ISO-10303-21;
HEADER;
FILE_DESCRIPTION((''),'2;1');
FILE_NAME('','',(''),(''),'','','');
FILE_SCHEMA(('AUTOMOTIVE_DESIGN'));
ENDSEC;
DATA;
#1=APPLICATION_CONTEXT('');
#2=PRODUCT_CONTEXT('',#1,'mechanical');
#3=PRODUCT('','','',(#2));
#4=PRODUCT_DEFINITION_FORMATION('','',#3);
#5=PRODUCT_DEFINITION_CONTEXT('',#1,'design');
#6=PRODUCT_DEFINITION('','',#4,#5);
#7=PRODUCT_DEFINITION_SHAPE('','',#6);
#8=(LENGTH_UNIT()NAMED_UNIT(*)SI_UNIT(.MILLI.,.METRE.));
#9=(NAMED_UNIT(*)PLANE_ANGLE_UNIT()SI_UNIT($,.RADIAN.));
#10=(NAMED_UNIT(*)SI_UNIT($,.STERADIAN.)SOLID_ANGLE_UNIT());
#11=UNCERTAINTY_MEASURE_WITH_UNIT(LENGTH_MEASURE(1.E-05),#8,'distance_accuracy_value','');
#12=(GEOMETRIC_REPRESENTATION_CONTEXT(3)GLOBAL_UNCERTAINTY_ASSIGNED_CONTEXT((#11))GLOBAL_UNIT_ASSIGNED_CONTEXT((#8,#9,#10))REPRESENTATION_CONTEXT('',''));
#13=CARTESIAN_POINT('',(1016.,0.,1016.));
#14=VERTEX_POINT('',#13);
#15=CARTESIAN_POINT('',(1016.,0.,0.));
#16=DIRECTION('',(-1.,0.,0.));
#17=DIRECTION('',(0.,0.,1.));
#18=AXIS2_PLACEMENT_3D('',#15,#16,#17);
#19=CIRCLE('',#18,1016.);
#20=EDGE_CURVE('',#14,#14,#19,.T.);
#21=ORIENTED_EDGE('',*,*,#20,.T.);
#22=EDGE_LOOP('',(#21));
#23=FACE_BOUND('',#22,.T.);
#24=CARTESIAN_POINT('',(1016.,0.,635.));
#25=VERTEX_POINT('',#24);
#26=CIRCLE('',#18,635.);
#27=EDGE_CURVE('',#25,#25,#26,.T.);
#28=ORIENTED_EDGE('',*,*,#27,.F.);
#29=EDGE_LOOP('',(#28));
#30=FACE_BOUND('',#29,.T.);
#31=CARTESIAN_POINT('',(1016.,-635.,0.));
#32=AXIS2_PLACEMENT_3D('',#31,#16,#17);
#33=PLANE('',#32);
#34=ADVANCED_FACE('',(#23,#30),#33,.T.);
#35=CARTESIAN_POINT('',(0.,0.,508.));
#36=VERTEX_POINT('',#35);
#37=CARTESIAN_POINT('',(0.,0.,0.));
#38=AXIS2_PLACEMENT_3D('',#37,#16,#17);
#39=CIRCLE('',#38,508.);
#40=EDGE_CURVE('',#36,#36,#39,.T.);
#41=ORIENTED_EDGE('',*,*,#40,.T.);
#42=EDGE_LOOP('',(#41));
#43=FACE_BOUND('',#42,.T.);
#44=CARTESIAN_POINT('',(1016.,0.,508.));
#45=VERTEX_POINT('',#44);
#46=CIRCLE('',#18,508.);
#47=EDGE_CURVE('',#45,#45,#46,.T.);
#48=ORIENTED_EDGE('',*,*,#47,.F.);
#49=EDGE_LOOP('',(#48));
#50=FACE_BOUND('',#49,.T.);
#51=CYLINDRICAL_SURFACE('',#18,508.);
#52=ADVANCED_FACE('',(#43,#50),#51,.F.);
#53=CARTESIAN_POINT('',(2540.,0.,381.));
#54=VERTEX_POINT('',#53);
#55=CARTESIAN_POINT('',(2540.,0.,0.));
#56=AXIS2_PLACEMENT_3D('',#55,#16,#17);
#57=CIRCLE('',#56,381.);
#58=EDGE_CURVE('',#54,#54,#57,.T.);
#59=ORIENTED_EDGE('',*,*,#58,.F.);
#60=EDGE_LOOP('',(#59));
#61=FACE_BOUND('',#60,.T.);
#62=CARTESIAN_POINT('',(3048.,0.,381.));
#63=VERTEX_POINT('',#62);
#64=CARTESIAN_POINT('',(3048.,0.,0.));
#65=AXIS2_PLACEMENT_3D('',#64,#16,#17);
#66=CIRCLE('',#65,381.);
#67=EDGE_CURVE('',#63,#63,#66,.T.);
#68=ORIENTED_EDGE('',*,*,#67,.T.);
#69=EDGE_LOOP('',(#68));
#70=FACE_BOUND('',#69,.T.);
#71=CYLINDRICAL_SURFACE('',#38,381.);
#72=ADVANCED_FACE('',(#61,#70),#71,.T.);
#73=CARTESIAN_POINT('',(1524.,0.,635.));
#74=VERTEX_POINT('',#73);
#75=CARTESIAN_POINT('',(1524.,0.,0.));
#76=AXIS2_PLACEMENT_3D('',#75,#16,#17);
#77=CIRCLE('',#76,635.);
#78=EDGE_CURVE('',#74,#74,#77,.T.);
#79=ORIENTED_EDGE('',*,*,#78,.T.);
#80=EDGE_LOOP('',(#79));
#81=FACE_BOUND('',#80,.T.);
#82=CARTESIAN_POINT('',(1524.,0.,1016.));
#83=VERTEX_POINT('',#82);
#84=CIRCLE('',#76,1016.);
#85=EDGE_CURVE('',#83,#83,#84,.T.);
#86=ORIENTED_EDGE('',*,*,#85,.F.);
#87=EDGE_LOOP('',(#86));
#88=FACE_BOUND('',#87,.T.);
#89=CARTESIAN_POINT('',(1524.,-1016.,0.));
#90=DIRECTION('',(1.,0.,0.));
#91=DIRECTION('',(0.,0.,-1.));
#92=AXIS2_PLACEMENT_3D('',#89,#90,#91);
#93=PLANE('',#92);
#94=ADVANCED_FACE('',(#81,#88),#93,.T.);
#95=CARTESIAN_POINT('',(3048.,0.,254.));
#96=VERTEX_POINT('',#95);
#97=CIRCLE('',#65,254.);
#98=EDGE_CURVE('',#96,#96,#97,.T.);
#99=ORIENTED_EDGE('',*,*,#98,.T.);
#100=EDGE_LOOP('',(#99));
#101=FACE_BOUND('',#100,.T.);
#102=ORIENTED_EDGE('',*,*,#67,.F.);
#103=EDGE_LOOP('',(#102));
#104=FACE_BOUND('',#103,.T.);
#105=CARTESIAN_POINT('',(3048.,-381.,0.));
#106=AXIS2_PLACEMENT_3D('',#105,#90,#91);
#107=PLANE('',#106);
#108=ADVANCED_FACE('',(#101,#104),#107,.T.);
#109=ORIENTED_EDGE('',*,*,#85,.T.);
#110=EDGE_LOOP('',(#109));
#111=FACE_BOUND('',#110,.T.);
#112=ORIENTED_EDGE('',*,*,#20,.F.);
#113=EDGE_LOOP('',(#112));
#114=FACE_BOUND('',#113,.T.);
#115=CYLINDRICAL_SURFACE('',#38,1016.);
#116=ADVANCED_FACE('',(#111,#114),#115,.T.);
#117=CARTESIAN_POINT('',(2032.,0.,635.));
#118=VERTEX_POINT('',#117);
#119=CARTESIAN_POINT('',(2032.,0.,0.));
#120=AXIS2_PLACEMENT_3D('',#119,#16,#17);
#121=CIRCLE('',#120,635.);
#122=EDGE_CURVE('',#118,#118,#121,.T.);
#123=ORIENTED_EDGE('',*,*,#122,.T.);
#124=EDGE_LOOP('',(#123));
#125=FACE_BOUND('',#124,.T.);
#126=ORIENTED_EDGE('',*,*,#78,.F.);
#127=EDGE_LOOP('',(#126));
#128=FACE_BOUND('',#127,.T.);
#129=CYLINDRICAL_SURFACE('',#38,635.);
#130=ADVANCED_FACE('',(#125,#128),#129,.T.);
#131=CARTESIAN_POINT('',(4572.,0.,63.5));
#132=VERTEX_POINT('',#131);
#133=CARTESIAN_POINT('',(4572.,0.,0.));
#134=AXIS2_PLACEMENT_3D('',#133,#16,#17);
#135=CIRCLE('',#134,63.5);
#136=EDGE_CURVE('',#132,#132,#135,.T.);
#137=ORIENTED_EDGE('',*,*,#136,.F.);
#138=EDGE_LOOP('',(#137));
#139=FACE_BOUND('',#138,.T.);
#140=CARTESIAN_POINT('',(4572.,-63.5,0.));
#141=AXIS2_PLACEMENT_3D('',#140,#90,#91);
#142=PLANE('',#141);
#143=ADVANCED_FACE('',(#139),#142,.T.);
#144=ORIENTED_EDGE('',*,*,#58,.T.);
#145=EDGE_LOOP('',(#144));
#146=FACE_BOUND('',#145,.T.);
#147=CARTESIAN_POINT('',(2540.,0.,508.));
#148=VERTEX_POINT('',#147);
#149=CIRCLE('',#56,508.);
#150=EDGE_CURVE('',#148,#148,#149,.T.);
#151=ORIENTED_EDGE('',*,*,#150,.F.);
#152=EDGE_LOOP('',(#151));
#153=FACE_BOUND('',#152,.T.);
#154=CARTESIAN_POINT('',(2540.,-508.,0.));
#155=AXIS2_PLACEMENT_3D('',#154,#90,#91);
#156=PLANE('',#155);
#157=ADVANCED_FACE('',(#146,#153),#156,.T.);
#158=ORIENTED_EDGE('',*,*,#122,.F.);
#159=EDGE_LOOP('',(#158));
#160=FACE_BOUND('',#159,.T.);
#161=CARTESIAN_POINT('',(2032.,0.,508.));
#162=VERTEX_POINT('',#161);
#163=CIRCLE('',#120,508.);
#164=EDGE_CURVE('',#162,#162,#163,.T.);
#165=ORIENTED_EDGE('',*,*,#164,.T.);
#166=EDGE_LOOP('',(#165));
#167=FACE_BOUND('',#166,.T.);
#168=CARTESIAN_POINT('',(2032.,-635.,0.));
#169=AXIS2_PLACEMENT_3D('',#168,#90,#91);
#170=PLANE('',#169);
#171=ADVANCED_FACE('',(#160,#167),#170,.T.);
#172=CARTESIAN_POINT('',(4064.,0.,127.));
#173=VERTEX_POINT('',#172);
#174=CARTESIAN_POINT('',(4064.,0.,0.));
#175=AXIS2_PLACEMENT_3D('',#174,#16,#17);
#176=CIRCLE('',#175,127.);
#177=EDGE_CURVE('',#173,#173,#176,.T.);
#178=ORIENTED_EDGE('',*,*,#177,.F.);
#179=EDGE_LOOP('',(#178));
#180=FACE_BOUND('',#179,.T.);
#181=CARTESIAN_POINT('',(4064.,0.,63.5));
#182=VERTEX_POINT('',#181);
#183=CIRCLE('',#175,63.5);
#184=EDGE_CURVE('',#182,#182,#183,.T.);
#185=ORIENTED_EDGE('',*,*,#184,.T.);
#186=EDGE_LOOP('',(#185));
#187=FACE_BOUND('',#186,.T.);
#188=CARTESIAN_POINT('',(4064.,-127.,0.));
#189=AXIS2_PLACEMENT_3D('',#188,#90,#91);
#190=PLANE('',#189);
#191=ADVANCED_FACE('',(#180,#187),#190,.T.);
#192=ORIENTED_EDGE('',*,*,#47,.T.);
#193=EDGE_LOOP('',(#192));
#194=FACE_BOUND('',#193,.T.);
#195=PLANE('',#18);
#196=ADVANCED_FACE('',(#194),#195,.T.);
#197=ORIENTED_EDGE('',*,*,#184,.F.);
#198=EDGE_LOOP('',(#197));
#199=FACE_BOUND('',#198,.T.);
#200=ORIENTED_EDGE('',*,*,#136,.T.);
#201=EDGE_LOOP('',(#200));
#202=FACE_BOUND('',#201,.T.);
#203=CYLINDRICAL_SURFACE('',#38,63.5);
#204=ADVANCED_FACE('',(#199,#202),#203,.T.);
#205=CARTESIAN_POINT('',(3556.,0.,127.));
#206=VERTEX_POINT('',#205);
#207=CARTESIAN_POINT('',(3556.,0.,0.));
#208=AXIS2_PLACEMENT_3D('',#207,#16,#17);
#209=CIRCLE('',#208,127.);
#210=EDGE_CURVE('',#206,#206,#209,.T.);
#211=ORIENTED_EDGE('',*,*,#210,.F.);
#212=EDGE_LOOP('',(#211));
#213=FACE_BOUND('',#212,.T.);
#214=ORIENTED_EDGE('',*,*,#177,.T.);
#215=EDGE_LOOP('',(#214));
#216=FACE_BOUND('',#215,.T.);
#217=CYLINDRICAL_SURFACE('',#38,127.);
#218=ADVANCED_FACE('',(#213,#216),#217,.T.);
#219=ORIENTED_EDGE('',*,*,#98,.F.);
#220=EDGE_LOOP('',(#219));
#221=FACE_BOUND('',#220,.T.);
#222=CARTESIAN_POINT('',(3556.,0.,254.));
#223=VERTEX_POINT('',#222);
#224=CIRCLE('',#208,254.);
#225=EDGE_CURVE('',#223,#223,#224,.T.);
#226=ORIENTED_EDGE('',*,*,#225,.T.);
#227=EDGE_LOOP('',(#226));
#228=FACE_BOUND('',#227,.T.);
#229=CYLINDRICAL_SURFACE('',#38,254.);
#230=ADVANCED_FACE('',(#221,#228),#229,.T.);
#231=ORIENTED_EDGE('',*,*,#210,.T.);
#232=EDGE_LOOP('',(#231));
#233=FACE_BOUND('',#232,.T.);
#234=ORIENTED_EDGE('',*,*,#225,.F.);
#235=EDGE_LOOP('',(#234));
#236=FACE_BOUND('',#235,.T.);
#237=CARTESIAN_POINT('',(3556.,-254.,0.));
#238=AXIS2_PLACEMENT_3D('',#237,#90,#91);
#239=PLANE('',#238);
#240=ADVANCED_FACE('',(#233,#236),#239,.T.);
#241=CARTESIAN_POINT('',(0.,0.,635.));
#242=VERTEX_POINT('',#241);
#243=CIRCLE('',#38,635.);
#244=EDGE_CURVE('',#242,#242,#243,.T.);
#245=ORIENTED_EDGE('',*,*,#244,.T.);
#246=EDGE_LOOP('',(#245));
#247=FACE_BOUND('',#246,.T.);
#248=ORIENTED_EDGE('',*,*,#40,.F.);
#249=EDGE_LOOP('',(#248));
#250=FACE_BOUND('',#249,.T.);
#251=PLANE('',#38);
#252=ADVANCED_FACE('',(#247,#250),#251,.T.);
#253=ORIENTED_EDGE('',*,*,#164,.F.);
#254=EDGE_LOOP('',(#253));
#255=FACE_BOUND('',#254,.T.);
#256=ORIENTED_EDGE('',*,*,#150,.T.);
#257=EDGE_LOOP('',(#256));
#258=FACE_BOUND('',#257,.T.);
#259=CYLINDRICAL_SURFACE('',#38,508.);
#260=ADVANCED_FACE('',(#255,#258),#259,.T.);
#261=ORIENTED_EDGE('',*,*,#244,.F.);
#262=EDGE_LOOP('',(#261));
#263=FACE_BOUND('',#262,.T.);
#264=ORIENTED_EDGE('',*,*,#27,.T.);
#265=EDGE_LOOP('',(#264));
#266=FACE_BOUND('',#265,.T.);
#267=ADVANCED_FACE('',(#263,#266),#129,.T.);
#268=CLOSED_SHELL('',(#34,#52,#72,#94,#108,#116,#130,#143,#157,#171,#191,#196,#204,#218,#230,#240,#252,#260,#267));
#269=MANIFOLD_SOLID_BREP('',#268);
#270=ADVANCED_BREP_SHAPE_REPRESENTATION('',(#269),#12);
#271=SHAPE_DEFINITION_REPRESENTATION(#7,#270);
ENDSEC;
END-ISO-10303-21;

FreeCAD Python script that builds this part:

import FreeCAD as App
import Part
import Sketcher
from FreeCAD import Vector
Q = App.Units.Quantity

doc = App.newDocument("Part")
body = doc.addObject("PartDesign::Body", "Body")

# Sketch on XY plane
sketch1 = doc.addObject("Sketcher::SketchObject", "Sketch")
body.addObject(sketch1)
sketch1.AttachmentSupport = (doc.XY_Plane, [""])
sketch1.MapMode = "FlatFace"
sketch1.addGeometry(Part.LineSegment(Vector(0, 0, 0), Vector(0, -635, 0)), False)
sketch1.addGeometry(Part.LineSegment(Vector(0, -635, 0), Vector(1016, -635, 0)), False)
sketch1.addGeometry(Part.LineSegment(Vector(1016, -635, 0), Vector(1016, -1016, 0)), False)
sketch1.addGeometry(Part.LineSegment(Vector(1016, -1016, 0), Vector(1524, -1016, 0)), False)
sketch1.addGeometry(Part.LineSegment(Vector(1524, -1016, 0), Vector(1524, -635, 0)), False)
sketch1.addGeometry(Part.LineSegment(Vector(1524, -635, 0), Vector(2032, -635, 0)), False)
sketch1.addGeometry(Part.LineSegment(Vector(2032, -635, 0), Vector(2032, -508, 0)), False)
sketch1.addGeometry(Part.LineSegment(Vector(2032, -508, 0), Vector(2540, -508, 0)), False)
sketch1.addGeometry(Part.LineSegment(Vector(2540, -508, 0), Vector(2540, -381, 0)), False)
sketch1.addGeometry(Part.LineSegment(Vector(2540, -381, 0), Vector(3048, -381, 0)), False)
sketch1.addGeometry(Part.LineSegment(Vector(3048, -381, 0), Vector(3048, -254, 0)), False)
sketch1.addGeometry(Part.LineSegment(Vector(3048, -254, 0), Vector(3556, -254, 0)), False)
sketch1.addGeometry(Part.LineSegment(Vector(3556, -254, 0), Vector(3556, -127, 0)), False)
sketch1.addGeometry(Part.LineSegment(Vector(3556, -127, 0), Vector(4064, -127, 0)), False)
sketch1.addGeometry(Part.LineSegment(Vector(4064, -127, 0), Vector(4064, -64, 0)), False)
sketch1.addGeometry(Part.LineSegment(Vector(4064, -64, 0), Vector(4572, -64, 0)), False)
sketch1.addGeometry(Part.LineSegment(Vector(4572, -64, 0), Vector(4572, 0, 0)), False)
sketch1.addGeometry(Part.LineSegment(Vector(4572, 0, 0), Vector(0, 0, 0)), False)
sketch1.addConstraint(Sketcher.Constraint("Coincident", 0, 2, 1, 1))
sketch1.addConstraint(Sketcher.Constraint("Coincident", 1, 2, 2, 1))
sketch1.addConstraint(Sketcher.Constraint("Coincident", 2, 2, 3, 1))
sketch1.addConstraint(Sketcher.Constraint("Coincident", 3, 2, 4, 1))
sketch1.addConstraint(Sketcher.Constraint("Coincident", 4, 2, 5, 1))
sketch1.addConstraint(Sketcher.Constraint("Coincident", 5, 2, 6, 1))
sketch1.addConstraint(Sketcher.Constraint("Coincident", 6, 2, 7, 1))
sketch1.addConstraint(Sketcher.Constraint("Coincident", 7, 2, 8, 1))
sketch1.addConstraint(Sketcher.Constraint("Coincident", 8, 2, 9, 1))
sketch1.addConstraint(Sketcher.Constraint("Coincident", 9, 2, 10, 1))
sketch1.addConstraint(Sketcher.Constraint("Coincident", 10, 2, 11, 1))
sketch1.addConstraint(Sketcher.Constraint("Coincident", 11, 2, 12, 1))
sketch1.addConstraint(Sketcher.Constraint("Coincident", 12, 2, 13, 1))
sketch1.addConstraint(Sketcher.Constraint("Coincident", 13, 2, 14, 1))
sketch1.addConstraint(Sketcher.Constraint("Coincident", 14, 2, 15, 1))
sketch1.addConstraint(Sketcher.Constraint("Coincident", 15, 2, 16, 1))
sketch1.addConstraint(Sketcher.Constraint("Coincident", 16, 2, 17, 1))
sketch1.addConstraint(Sketcher.Constraint("Coincident", 17, 2, 0, 1))
sketch1.addConstraint(Sketcher.Constraint("Vertical", 0))
sketch1.addConstraint(Sketcher.Constraint("Horizontal", 1))
sketch1.addConstraint(Sketcher.Constraint("Vertical", 2))
sketch1.addConstraint(Sketcher.Constraint("Horizontal", 3))
sketch1.addConstraint(Sketcher.Constraint("Vertical", 4))
sketch1.addConstraint(Sketcher.Constraint("Horizontal", 5))
sketch1.addConstraint(Sketcher.Constraint("Vertical", 6))
sketch1.addConstraint(Sketcher.Constraint("Horizontal", 7))
sketch1.addConstraint(Sketcher.Constraint("Vertical", 8))
sketch1.addConstraint(Sketcher.Constraint("Horizontal", 9))
sketch1.addConstraint(Sketcher.Constraint("Vertical", 10))
sketch1.addConstraint(Sketcher.Constraint("Horizontal", 11))
sketch1.addConstraint(Sketcher.Constraint("Vertical", 12))
sketch1.addConstraint(Sketcher.Constraint("Horizontal", 13))
sketch1.addConstraint(Sketcher.Constraint("Vertical", 14))
sketch1.addConstraint(Sketcher.Constraint("Horizontal", 15))
sketch1.addConstraint(Sketcher.Constraint("Vertical", 16))
sketch1.addConstraint(Sketcher.Constraint("Horizontal", 17))
sketch1.addConstraint(Sketcher.Constraint("Coincident", 17, 2, -1, 1))
sketch1.addConstraint(Sketcher.Constraint("Horizontal", 1, 2, 4, 2))
sketch1.addConstraint(Sketcher.Constraint("Equal", 3, 5))
sketch1.addConstraint(Sketcher.Constraint("Equal", 5, 7))
sketch1.addConstraint(Sketcher.Constraint("Equal", 7, 9))
sketch1.addConstraint(Sketcher.Constraint("Equal", 9, 11))
sketch1.addConstraint(Sketcher.Constraint("Equal", 11, 13))
sketch1.addConstraint(Sketcher.Constraint("Equal", 13, 15))
sketch1.addConstraint(Sketcher.Constraint("Equal", 6, 8))
sketch1.addConstraint(Sketcher.Constraint("Equal", 8, 10))
sketch1.addConstraint(Sketcher.Constraint("Equal", 10, 12))
sketch1.addConstraint(Sketcher.Constraint("Equal", 14, 16))
sketch1.addConstraint(Sketcher.Constraint("DistanceX", 1, 1, 1, 2, Q("40 in")))
sketch1.addConstraint(Sketcher.Constraint("DistanceX", 3, 1, 3, 2, Q("20 in")))
sketch1.addConstraint(Sketcher.Constraint("DistanceY", 0, 2, 0, 1, Q("25 in")))
sketch1.addConstraint(Sketcher.Constraint("DistanceY", 2, 2, 2, 1, Q("15 in")))
sketch1.addConstraint(Sketcher.Constraint("DistanceY", 6, 1, 6, 2, Q("5 in")))
revolution = doc.addObject("PartDesign::Revolution", "Revolution")
body.addObject(revolution)
revolution.Profile = sketch1
revolution.ReferenceAxis = (sketch1, ["H_Axis"])
revolution.Angle = 360

# Sketch on YZ plane
sketch2 = doc.addObject("Sketcher::SketchObject", "Sketch001")
body.addObject(sketch2)
sketch2.AttachmentSupport = (doc.YZ_Plane, [""])
sketch2.MapMode = "FlatFace"
sketch2.addGeometry(Part.Circle(Vector(0, 0, 0), Vector(0, 0, 1), 508), False)
sketch2.addConstraint(Sketcher.Constraint("Coincident", 0, 3, -1, 1))
sketch2.addConstraint(Sketcher.Constraint("Diameter", 0, Q("40 in")))
pocket1 = doc.addObject("PartDesign::Pocket", "Pocket")
body.addObject(pocket1)
pocket1.Profile = sketch2
pocket1.Length = Q("40 in")
pocket1.Reversed = True

doc.recompute()
